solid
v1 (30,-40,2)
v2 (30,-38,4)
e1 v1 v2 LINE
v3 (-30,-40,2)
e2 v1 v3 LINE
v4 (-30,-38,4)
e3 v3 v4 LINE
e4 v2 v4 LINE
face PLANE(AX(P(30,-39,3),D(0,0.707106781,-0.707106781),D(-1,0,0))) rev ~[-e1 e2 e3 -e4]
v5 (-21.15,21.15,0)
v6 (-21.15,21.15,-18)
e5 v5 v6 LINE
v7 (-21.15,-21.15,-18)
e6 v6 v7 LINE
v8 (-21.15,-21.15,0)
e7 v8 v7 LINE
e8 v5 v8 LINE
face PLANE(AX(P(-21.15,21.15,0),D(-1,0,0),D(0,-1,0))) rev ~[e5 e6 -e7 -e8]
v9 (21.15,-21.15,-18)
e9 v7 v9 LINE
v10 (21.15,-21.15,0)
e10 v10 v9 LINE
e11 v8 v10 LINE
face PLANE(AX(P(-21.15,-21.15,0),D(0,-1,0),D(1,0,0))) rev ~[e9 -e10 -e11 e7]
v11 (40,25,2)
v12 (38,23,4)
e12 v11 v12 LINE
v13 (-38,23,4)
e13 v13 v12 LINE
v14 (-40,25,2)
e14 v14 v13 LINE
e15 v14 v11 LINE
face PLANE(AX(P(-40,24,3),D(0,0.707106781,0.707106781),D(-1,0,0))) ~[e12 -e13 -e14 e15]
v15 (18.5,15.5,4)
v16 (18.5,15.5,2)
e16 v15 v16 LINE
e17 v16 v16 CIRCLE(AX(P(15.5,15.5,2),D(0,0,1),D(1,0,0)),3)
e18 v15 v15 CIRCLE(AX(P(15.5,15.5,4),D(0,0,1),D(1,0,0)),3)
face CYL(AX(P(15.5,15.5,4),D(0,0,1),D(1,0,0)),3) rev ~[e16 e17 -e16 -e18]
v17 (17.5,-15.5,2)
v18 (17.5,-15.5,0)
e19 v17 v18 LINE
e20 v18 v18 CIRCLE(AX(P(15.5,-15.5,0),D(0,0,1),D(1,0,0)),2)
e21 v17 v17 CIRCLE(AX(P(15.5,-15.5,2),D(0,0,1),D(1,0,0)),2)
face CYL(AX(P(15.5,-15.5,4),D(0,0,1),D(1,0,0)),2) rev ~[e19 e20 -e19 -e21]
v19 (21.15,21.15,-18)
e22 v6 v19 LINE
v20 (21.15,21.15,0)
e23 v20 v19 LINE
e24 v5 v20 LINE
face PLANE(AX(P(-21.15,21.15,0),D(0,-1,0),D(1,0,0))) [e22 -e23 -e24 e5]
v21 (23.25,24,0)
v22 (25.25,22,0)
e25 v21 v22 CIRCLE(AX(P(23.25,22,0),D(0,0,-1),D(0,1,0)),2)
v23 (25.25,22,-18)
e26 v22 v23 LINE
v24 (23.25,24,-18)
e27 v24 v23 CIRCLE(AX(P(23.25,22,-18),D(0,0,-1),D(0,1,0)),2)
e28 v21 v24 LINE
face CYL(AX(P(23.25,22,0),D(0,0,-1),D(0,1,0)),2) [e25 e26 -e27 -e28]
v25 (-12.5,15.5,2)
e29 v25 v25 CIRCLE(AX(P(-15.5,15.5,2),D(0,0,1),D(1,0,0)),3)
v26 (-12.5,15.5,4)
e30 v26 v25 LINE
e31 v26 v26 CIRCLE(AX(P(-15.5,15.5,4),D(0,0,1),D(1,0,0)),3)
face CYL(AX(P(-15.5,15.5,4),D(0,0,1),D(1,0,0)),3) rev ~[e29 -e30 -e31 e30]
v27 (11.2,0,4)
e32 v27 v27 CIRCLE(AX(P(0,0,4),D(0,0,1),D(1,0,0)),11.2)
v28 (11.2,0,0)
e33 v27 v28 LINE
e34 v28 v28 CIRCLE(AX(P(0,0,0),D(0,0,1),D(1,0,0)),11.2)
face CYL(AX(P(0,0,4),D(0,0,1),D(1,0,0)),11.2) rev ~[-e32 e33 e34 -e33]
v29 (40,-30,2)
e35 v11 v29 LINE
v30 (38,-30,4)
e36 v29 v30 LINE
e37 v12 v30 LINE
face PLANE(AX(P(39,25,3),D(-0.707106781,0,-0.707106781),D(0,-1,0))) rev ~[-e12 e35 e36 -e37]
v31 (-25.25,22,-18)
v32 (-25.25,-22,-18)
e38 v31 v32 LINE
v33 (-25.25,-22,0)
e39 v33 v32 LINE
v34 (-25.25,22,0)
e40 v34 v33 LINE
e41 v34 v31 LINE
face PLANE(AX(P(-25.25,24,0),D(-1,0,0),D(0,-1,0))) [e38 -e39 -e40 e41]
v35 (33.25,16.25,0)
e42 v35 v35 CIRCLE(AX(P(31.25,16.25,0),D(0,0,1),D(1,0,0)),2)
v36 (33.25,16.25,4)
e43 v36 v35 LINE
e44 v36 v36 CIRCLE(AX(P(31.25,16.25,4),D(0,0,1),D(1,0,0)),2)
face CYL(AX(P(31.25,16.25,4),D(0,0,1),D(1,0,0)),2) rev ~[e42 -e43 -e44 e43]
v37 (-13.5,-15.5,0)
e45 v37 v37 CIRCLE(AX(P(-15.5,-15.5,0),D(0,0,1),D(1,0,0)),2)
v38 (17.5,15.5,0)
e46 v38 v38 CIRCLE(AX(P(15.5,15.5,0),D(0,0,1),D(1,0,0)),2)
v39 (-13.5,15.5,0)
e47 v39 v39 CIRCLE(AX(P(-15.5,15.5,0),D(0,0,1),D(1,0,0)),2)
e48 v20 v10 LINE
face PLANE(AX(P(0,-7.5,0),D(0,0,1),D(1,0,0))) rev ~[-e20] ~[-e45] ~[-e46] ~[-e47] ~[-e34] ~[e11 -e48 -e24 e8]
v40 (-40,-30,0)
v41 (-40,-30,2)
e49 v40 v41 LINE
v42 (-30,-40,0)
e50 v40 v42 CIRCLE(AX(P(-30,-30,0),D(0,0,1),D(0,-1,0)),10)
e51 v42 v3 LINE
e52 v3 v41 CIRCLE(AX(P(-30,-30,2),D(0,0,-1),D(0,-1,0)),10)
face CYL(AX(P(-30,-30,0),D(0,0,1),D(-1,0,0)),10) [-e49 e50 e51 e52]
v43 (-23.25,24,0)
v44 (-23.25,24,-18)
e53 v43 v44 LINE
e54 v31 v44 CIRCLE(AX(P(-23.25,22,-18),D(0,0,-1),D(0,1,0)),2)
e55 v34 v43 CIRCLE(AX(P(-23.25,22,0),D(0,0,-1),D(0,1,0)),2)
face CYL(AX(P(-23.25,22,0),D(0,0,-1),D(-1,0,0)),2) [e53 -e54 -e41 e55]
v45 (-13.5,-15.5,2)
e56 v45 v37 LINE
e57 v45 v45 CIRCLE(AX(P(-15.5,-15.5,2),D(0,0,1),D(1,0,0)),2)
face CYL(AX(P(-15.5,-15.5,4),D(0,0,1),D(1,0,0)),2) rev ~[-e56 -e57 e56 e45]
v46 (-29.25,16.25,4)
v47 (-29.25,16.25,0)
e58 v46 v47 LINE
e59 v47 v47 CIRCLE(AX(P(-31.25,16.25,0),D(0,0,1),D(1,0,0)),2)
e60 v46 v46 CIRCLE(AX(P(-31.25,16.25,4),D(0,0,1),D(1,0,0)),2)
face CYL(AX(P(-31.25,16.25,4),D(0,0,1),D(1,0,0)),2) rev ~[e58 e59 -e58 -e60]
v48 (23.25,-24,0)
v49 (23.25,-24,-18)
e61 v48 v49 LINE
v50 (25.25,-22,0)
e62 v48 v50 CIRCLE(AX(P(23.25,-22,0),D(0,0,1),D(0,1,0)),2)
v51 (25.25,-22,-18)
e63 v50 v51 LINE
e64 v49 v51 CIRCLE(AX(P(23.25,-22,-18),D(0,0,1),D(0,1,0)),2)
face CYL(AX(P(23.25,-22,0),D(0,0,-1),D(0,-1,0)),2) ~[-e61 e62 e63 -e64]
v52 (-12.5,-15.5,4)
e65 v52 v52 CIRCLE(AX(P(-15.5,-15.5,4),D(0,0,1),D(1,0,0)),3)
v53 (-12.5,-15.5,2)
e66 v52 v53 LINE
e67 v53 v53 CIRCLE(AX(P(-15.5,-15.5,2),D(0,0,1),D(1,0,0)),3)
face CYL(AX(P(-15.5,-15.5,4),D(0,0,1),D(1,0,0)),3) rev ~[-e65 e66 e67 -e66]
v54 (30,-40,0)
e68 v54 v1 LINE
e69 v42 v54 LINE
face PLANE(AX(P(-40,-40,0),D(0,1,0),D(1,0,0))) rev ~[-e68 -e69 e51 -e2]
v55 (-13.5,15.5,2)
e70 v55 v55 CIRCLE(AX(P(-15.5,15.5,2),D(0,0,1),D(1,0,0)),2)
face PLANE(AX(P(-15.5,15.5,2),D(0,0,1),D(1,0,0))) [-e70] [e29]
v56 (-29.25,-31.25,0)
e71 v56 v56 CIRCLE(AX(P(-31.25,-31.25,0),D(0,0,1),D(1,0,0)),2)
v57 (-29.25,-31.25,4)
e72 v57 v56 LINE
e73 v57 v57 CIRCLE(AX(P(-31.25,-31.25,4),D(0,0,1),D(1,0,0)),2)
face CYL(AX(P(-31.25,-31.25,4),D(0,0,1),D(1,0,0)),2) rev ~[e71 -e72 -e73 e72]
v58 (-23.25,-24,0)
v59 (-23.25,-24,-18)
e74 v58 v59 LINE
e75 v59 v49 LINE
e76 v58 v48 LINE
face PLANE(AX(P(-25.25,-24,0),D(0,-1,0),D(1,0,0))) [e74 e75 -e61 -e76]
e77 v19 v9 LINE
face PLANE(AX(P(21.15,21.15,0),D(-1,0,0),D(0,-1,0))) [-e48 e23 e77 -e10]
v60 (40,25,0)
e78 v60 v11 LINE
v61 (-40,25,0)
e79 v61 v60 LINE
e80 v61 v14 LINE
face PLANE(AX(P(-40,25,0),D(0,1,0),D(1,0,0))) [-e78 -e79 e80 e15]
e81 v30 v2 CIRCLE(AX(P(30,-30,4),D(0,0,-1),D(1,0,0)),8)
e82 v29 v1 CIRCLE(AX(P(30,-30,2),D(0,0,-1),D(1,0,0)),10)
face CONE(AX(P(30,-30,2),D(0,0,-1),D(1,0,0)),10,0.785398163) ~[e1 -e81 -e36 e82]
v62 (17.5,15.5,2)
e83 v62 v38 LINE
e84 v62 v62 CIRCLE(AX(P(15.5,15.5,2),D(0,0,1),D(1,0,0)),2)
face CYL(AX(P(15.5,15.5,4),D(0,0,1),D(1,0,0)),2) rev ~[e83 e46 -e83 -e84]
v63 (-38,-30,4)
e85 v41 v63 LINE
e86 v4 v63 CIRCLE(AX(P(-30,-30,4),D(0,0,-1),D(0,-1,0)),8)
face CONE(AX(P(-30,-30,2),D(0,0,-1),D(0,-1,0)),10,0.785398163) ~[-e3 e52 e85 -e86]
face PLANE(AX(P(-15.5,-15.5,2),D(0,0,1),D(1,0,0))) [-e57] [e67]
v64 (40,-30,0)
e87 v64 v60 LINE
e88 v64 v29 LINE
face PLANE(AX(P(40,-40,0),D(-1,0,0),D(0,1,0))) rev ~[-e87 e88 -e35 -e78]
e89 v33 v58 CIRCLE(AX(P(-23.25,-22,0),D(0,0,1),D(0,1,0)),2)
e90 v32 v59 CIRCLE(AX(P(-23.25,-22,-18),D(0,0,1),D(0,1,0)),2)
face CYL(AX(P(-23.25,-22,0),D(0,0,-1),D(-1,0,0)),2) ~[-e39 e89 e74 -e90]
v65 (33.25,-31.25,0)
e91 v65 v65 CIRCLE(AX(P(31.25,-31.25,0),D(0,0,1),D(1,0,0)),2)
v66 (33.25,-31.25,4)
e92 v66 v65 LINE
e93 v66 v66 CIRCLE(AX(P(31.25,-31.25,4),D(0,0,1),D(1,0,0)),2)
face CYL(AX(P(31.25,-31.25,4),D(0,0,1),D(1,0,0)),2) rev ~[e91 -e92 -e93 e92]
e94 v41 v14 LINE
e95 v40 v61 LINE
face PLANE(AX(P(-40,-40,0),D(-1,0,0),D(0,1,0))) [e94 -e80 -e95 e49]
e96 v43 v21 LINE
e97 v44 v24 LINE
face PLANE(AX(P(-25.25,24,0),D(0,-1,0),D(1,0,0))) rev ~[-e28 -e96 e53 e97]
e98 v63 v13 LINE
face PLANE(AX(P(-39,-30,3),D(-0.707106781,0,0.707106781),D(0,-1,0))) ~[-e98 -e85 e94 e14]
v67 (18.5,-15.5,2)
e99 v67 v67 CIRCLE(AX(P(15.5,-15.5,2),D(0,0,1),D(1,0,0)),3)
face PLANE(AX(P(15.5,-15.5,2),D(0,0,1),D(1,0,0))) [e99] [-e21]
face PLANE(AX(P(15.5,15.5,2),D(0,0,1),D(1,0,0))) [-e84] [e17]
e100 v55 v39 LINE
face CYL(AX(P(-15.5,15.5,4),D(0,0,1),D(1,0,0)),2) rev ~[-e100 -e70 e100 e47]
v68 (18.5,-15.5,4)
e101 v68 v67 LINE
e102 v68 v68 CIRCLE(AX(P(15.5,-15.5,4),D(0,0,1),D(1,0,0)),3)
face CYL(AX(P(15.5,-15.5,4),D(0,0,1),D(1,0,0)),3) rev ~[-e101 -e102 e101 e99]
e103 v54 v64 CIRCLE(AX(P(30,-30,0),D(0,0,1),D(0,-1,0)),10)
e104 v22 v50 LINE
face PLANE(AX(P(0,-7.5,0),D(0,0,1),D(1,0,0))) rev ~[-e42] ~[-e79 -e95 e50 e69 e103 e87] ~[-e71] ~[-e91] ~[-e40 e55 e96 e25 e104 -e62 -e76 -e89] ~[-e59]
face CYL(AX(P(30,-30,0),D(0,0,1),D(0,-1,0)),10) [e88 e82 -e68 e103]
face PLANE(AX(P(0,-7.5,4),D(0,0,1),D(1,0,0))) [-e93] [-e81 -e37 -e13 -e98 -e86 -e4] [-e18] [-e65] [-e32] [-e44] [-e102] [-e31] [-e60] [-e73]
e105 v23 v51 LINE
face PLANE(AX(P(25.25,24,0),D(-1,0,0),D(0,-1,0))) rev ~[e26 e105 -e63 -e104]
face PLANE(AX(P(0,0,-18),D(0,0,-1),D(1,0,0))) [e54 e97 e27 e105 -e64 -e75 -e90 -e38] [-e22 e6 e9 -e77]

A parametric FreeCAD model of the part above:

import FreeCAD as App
import Part
import Sketcher


def edges_at(feature, points):
    """Names of the edges that pass closest to the given points."""
    edges = feature.Shape.Edges
    near = lambda p: min(range(len(edges)), key=lambda i: edges[i].distToShape(Part.Vertex(*p))[0])
    return sorted({f"Edge{near(p) + 1}" for p in points})

doc = App.newDocument("Part")
params = doc.addObject("Spreadsheet::Sheet", "Params")
for row, (alias, value) in enumerate([
    ("sketch1_width", "80 mm"),
    ("sketch1_height", "65 mm"),
    ("pad1_length", "4 mm"),
    ("sketch2_diameter", "22.4 mm"),
    ("sketch3_diameter", "4 mm"),
    ("sketch4_height", "48 mm"),
    ("sketch4_width", "50.5 mm"),
    ("sketch4_width2", "42.3 mm"),
    ("pad2_length", "18 mm"),
    ("sketch5_diameter", "6 mm"),
    ("pocket3_length", "2 mm"),
    ("sketch6_diameter", "4 mm"),
    ("fillet_radius", "10 mm"),
    ("fillet2_radius", "2 mm"),
    ("chamfer_size", "2 mm"),
], start=1):
    params.set(f"A{row}", alias)
    params.set(f"B{row}", "=" + value)
    params.setAlias(f"B{row}", alias)

body = doc.addObject("PartDesign::Body", "Body")

# Sketch on XY plane
sketch1 = body.newObject("Sketcher::SketchObject", "Sketch")
sketch1.AttachmentSupport = (doc.getObject("XY_Plane"), [""])
sketch1.MapMode = "FlatFace"
sketch1.addGeometry(Part.LineSegment(App.Vector(-40, 25, 0), App.Vector(-40, -40, 0)), False)
sketch1.addGeometry(Part.LineSegment(App.Vector(-40, -40, 0), App.Vector(40, -40, 0)), False)
sketch1.addGeometry(Part.LineSegment(App.Vector(40, -40, 0), App.Vector(40, 25, 0)), False)
sketch1.addGeometry(Part.LineSegment(App.Vector(40, 25, 0), App.Vector(-40, 25, 0)), False)
sketch1.addConstraint(Sketcher.Constraint("Coincident", 0, 2, 1, 1))
sketch1.addConstraint(Sketcher.Constraint("Coincident", 1, 2, 2, 1))
sketch1.addConstraint(Sketcher.Constraint("Coincident", 2, 2, 3, 1))
sketch1.addConstraint(Sketcher.Constraint("Coincident", 3, 2, 0, 1))
sketch1.addConstraint(Sketcher.Constraint("Vertical", 0))
sketch1.addConstraint(Sketcher.Constraint("Horizontal", 1))
sketch1.addConstraint(Sketcher.Constraint("Vertical", 2))
sketch1.addConstraint(Sketcher.Constraint("Horizontal", 3))
sketch1.addConstraint(Sketcher.Constraint("DistanceX", 1, 1, 1, 2, 80.0))
sketch1.addConstraint(Sketcher.Constraint("DistanceY", 0, 2, 0, 1, 65.0))
sketch1.addConstraint(Sketcher.Constraint("DistanceX", 0, 2, -1, 1, 40.0))
sketch1.addConstraint(Sketcher.Constraint("DistanceY", 0, 2, -1, 1, 40.0))
sketch1.setExpression("Constraints[8]", "Params.sketch1_width")
sketch1.setExpression("Constraints[9]", "Params.sketch1_height")
pad1 = body.newObject("PartDesign::Pad", "Pad")
pad1.Profile = sketch1
pad1.setExpression("Length", "Params.pad1_length")

# Sketch on XY plane
sketch2 = body.newObject("Sketcher::SketchObject", "Sketch001")
sketch2.AttachmentSupport = (doc.getObject("XY_Plane"), [""])
sketch2.MapMode = "FlatFace"
sketch2.AttachmentOffset = App.Placement(App.Vector(0, 0, 4), App.Rotation())
sketch2.addGeometry(Part.Circle(App.Vector(0, 0, 0), App.Vector(0, 0, 1), 11), False)
sketch2.addConstraint(Sketcher.Constraint("Coincident", 0, 3, -1, 1))
sketch2.addConstraint(Sketcher.Constraint("Diameter", 0, 22.4))
sketch2.setExpression("Constraints[1]", "Params.sketch2_diameter")
pocket1 = body.newObject("PartDesign::Pocket", "Pocket")
pocket1.Profile = sketch2
pocket1.Type = "ThroughAll"

# Sketch on XY plane
sketch3 = body.newObject("Sketcher::SketchObject", "Sketch002")
sketch3.AttachmentSupport = (doc.getObject("XY_Plane"), [""])
sketch3.MapMode = "FlatFace"
sketch3.AttachmentOffset = App.Placement(App.Vector(0, 0, 4), App.Rotation())
sketch3.addGeometry(Part.Circle(App.Vector(-15.5, 15.5, 0), App.Vector(0, 0, 1), 2), False)
sketch3.addGeometry(Part.Circle(App.Vector(-15.5, -15.5, 0), App.Vector(0, 0, 1), 2), False)
sketch3.addGeometry(Part.Circle(App.Vector(15.5, -15.5, 0), App.Vector(0, 0, 1), 2), False)
sketch3.addGeometry(Part.Circle(App.Vector(15.5, 15.5, 0), App.Vector(0, 0, 1), 2), False)
sketch3.addConstraint(Sketcher.Constraint("Equal", 0, 1))
sketch3.addConstraint(Sketcher.Constraint("Equal", 1, 2))
sketch3.addConstraint(Sketcher.Constraint("Equal", 2, 3))
sketch3.addConstraint(Sketcher.Constraint("Symmetric", 0, 3, 2, 3, -1, 1))
sketch3.addConstraint(Sketcher.Constraint("Symmetric", 1, 3, 3, 3, -1, 1))
sketch3.addConstraint(Sketcher.Constraint("Symmetric", 1, 3, 2, 3, -2))
sketch3.addConstraint(Sketcher.Constraint("Diameter", 0, 4.0))
sketch3.addConstraint(Sketcher.Constraint("DistanceY", 1, 3, 0, 3, 31.0))
sketch3.addConstraint(Sketcher.Constraint("DistanceX", 1, 3, 2, 3, 31.0))
sketch3.setExpression("Constraints[6]", "Params.sketch3_diameter")
pocket2 = body.newObject("PartDesign::Pocket", "Pocket001")
pocket2.Profile = sketch3
pocket2.Type = "ThroughAll"

# Sketch on XY plane
sketch4 = body.newObject("Sketcher::SketchObject", "Sketch003")
sketch4.AttachmentSupport = (doc.getObject("XY_Plane"), [""])
sketch4.MapMode = "FlatFace"
sketch4.addGeometry(Part.LineSegment(App.Vector(-25, -24, 0), App.Vector(-25, 24, 0)), False)
sketch4.addGeometry(Part.LineSegment(App.Vector(-25, 24, 0), App.Vector(25, 24, 0)), False)
sketch4.addGeometry(Part.LineSegment(App.Vector(25, 24, 0), App.Vector(25, -24, 0)), False)
sketch4.addGeometry(Part.LineSegment(App.Vector(25, -24, 0), App.Vector(-25, -24, 0)), False)
sketch4.addGeometry(Part.LineSegment(App.Vector(21, 21, 0), App.Vector(-21, 21, 0)), False)
sketch4.addGeometry(Part.LineSegment(App.Vector(-21, 21, 0), App.Vector(-21, -21, 0)), False)
sketch4.addGeometry(Part.LineSegment(App.Vector(-21, -21, 0), App.Vector(21, -21, 0)), False)
sketch4.addGeometry(Part.LineSegment(App.Vector(21, -21, 0), App.Vector(21, 21, 0)), False)
sketch4.addConstraint(Sketcher.Constraint("Coincident", 0, 2, 1, 1))
sketch4.addConstraint(Sketcher.Constraint("Coincident", 1, 2, 2, 1))
sketch4.addConstraint(Sketcher.Constraint("Coincident", 2, 2, 3, 1))
sketch4.addConstraint(Sketcher.Constraint("Coincident", 3, 2, 0, 1))
sketch4.addConstraint(Sketcher.Constraint("Coincident", 4, 2, 5, 1))
sketch4.addConstraint(Sketcher.Constraint("Coincident", 5, 2, 6, 1))
sketch4.addConstraint(Sketcher.Constraint("Coincident", 6, 2, 7, 1))
sketch4.addConstraint(Sketcher.Constraint("Coincident", 7, 2, 4, 1))
sketch4.addConstraint(Sketcher.Constraint("Vertical", 0))
sketch4.addConstraint(Sketcher.Constraint("Horizontal", 1))
sketch4.addConstraint(Sketcher.Constraint("Vertical", 2))
sketch4.addConstraint(Sketcher.Constraint("Horizontal", 3))
sketch4.addConstraint(Sketcher.Constraint("Horizontal", 4))
sketch4.addConstraint(Sketcher.Constraint("Vertical", 5))
sketch4.addConstraint(Sketcher.Constraint("Horizontal", 6))
sketch4.addConstraint(Sketcher.Constraint("Vertical", 7))
sketch4.addConstraint(Sketcher.Constraint("Symmetric", 0, 2, 2, 2, -1, 1))
sketch4.addConstraint(Sketcher.Constraint("Symmetric", 4, 2, 6, 2, -1, 1))
sketch4.addConstraint(Sketcher.Constraint("Equal", 6, 5))
sketch4.addConstraint(Sketcher.Constraint("DistanceY", 0, 1, 0, 2, 48.0))
sketch4.addConstraint(Sketcher.Constraint("DistanceX", 1, 1, 1, 2, 50.5))
sketch4.addConstraint(Sketcher.Constraint("DistanceX", 4, 2, 4, 1, 42.3))
sketch4.setExpression("Constraints[19]", "Params.sketch4_height")
sketch4.setExpression("Constraints[20]", "Params.sketch4_width")
sketch4.setExpression("Constraints[21]", "Params.sketch4_width2")
pad2 = body.newObject("PartDesign::Pad", "Pad001")
pad2.Profile = sketch4
pad2.setExpression("Length", "Params.pad2_length")
pad2.Reversed = True

# Sketch on XY plane
sketch5 = body.newObject("Sketcher::SketchObject", "Sketch004")
sketch5.AttachmentSupport = (doc.getObject("XY_Plane"), [""])
sketch5.MapMode = "FlatFace"
sketch5.AttachmentOffset = App.Placement(App.Vector(0, 0, 4), App.Rotation())
sketch5.addGeometry(Part.Circle(App.Vector(-15.5, 15.5, 0), App.Vector(0, 0, 1), 3), False)
sketch5.addGeometry(Part.Circle(App.Vector(15.5, 15.5, 0), App.Vector(0, 0, 1), 3), False)
sketch5.addGeometry(Part.Circle(App.Vector(15.5, -15.5, 0), App.Vector(0, 0, 1), 3), False)
sketch5.addGeometry(Part.Circle(App.Vector(-15.5, -15.5, 0), App.Vector(0, 0, 1), 3), False)
sketch5.addConstraint(Sketcher.Constraint("Equal", 0, 1))
sketch5.addConstraint(Sketcher.Constraint("Equal", 1, 2))
sketch5.addConstraint(Sketcher.Constraint("Equal", 2, 3))
sketch5.addConstraint(Sketcher.Constraint("Symmetric", 0, 3, 2, 3, -1, 1))
sketch5.addConstraint(Sketcher.Constraint("Symmetric", 1, 3, 3, 3, -1, 1))
sketch5.addConstraint(Sketcher.Constraint("Symmetric", 0, 3, 1, 3, -2))
sketch5.addConstraint(Sketcher.Constraint("Diameter", 0, 6.0))
sketch5.addConstraint(Sketcher.Constraint("DistanceX", 0, 3, 1, 3, 31.0))
sketch5.addConstraint(Sketcher.Constraint("DistanceY", 2, 3, 1, 3, 31.0))
sketch5.setExpression("Constraints[6]", "Params.sketch5_diameter")
pocket3 = body.newObject("PartDesign::Pocket", "Pocket002")
pocket3.Profile = sketch5
pocket3.setExpression("Length", "Params.pocket3_length")

# Sketch on XY plane
sketch6 = body.newObject("Sketcher::SketchObject", "Sketch005")
sketch6.AttachmentSupport = (doc.getObject("XY_Plane"), [""])
sketch6.MapMode = "FlatFace"
sketch6.AttachmentOffset = App.Placement(App.Vector(0, 0, 4), App.Rotation())
sketch6.addGeometry(Part.Circle(App.Vector(-31.2, 16.2, 0), App.Vector(0, 0, 1), 2), False)
sketch6.addGeometry(Part.Circle(App.Vector(31.2, 16.2, 0), App.Vector(0, 0, 1), 2), False)
sketch6.addGeometry(Part.Circle(App.Vector(31.2, -31.2, 0), App.Vector(0, 0, 1), 2), False)
sketch6.addGeometry(Part.Circle(App.Vector(-31.2, -31.2, 0), App.Vector(0, 0, 1), 2), False)
sketch6.addConstraint(Sketcher.Constraint("Equal", 0, 1))
sketch6.addConstraint(Sketcher.Constraint("Equal", 1, 2))
sketch6.addConstraint(Sketcher.Constraint("Equal", 2, 3))
sketch6.addConstraint(Sketcher.Constraint("Symmetric", 0, 3, 1, 3, -2))
sketch6.addConstraint(Sketcher.Constraint("Symmetric", 2, 3, 3, 3, -2))
sketch6.addConstraint(Sketcher.Constraint("Vertical", 1, 3, 2, 3))
sketch6.addConstraint(Sketcher.Constraint("Diameter", 0, 4.0))
sketch6.addConstraint(Sketcher.Constraint("DistanceX", 0, 3, 1, 3, 62.5))
sketch6.addConstraint(Sketcher.Constraint("DistanceY", 2, 3, 1, 3, 47.5))
sketch6.addConstraint(Sketcher.Constraint("DistanceY", -1, 1, 0, 3, 16.25))
sketch6.setExpression("Constraints[6]", "Params.sketch6_diameter")
pocket4 = body.newObject("PartDesign::Pocket", "Pocket003")
pocket4.Profile = sketch6
pocket4.Type = "ThroughAll"
doc.recompute()

fillet = body.newObject("PartDesign::Fillet", "Fillet")
fillet.Base = (pocket4, edges_at(pocket4, [(40, -40, 2), (-40, -40, 2)]))
fillet.setExpression("Radius", "Params.fillet_radius")
doc.recompute()

fillet2 = body.newObject("PartDesign::Fillet", "Fillet001")
fillet2.Base = (fillet, edges_at(fillet, [
    (25.25, -24, -9),
    (25.25, 24, -9),
    (-25.25, -24, -9),
    (-25.25, 24, -9),
]))
fillet2.setExpression("Radius", "Params.fillet2_radius")
doc.recompute()

chamfer = body.newObject("PartDesign::Chamfer", "Chamfer")
chamfer.Base = (fillet2, edges_at(fillet2, [(0, 25, 4), (-40, -2.5, 4)]))
chamfer.setExpression("Size", "Params.chamfer_size")

doc.recompute()
